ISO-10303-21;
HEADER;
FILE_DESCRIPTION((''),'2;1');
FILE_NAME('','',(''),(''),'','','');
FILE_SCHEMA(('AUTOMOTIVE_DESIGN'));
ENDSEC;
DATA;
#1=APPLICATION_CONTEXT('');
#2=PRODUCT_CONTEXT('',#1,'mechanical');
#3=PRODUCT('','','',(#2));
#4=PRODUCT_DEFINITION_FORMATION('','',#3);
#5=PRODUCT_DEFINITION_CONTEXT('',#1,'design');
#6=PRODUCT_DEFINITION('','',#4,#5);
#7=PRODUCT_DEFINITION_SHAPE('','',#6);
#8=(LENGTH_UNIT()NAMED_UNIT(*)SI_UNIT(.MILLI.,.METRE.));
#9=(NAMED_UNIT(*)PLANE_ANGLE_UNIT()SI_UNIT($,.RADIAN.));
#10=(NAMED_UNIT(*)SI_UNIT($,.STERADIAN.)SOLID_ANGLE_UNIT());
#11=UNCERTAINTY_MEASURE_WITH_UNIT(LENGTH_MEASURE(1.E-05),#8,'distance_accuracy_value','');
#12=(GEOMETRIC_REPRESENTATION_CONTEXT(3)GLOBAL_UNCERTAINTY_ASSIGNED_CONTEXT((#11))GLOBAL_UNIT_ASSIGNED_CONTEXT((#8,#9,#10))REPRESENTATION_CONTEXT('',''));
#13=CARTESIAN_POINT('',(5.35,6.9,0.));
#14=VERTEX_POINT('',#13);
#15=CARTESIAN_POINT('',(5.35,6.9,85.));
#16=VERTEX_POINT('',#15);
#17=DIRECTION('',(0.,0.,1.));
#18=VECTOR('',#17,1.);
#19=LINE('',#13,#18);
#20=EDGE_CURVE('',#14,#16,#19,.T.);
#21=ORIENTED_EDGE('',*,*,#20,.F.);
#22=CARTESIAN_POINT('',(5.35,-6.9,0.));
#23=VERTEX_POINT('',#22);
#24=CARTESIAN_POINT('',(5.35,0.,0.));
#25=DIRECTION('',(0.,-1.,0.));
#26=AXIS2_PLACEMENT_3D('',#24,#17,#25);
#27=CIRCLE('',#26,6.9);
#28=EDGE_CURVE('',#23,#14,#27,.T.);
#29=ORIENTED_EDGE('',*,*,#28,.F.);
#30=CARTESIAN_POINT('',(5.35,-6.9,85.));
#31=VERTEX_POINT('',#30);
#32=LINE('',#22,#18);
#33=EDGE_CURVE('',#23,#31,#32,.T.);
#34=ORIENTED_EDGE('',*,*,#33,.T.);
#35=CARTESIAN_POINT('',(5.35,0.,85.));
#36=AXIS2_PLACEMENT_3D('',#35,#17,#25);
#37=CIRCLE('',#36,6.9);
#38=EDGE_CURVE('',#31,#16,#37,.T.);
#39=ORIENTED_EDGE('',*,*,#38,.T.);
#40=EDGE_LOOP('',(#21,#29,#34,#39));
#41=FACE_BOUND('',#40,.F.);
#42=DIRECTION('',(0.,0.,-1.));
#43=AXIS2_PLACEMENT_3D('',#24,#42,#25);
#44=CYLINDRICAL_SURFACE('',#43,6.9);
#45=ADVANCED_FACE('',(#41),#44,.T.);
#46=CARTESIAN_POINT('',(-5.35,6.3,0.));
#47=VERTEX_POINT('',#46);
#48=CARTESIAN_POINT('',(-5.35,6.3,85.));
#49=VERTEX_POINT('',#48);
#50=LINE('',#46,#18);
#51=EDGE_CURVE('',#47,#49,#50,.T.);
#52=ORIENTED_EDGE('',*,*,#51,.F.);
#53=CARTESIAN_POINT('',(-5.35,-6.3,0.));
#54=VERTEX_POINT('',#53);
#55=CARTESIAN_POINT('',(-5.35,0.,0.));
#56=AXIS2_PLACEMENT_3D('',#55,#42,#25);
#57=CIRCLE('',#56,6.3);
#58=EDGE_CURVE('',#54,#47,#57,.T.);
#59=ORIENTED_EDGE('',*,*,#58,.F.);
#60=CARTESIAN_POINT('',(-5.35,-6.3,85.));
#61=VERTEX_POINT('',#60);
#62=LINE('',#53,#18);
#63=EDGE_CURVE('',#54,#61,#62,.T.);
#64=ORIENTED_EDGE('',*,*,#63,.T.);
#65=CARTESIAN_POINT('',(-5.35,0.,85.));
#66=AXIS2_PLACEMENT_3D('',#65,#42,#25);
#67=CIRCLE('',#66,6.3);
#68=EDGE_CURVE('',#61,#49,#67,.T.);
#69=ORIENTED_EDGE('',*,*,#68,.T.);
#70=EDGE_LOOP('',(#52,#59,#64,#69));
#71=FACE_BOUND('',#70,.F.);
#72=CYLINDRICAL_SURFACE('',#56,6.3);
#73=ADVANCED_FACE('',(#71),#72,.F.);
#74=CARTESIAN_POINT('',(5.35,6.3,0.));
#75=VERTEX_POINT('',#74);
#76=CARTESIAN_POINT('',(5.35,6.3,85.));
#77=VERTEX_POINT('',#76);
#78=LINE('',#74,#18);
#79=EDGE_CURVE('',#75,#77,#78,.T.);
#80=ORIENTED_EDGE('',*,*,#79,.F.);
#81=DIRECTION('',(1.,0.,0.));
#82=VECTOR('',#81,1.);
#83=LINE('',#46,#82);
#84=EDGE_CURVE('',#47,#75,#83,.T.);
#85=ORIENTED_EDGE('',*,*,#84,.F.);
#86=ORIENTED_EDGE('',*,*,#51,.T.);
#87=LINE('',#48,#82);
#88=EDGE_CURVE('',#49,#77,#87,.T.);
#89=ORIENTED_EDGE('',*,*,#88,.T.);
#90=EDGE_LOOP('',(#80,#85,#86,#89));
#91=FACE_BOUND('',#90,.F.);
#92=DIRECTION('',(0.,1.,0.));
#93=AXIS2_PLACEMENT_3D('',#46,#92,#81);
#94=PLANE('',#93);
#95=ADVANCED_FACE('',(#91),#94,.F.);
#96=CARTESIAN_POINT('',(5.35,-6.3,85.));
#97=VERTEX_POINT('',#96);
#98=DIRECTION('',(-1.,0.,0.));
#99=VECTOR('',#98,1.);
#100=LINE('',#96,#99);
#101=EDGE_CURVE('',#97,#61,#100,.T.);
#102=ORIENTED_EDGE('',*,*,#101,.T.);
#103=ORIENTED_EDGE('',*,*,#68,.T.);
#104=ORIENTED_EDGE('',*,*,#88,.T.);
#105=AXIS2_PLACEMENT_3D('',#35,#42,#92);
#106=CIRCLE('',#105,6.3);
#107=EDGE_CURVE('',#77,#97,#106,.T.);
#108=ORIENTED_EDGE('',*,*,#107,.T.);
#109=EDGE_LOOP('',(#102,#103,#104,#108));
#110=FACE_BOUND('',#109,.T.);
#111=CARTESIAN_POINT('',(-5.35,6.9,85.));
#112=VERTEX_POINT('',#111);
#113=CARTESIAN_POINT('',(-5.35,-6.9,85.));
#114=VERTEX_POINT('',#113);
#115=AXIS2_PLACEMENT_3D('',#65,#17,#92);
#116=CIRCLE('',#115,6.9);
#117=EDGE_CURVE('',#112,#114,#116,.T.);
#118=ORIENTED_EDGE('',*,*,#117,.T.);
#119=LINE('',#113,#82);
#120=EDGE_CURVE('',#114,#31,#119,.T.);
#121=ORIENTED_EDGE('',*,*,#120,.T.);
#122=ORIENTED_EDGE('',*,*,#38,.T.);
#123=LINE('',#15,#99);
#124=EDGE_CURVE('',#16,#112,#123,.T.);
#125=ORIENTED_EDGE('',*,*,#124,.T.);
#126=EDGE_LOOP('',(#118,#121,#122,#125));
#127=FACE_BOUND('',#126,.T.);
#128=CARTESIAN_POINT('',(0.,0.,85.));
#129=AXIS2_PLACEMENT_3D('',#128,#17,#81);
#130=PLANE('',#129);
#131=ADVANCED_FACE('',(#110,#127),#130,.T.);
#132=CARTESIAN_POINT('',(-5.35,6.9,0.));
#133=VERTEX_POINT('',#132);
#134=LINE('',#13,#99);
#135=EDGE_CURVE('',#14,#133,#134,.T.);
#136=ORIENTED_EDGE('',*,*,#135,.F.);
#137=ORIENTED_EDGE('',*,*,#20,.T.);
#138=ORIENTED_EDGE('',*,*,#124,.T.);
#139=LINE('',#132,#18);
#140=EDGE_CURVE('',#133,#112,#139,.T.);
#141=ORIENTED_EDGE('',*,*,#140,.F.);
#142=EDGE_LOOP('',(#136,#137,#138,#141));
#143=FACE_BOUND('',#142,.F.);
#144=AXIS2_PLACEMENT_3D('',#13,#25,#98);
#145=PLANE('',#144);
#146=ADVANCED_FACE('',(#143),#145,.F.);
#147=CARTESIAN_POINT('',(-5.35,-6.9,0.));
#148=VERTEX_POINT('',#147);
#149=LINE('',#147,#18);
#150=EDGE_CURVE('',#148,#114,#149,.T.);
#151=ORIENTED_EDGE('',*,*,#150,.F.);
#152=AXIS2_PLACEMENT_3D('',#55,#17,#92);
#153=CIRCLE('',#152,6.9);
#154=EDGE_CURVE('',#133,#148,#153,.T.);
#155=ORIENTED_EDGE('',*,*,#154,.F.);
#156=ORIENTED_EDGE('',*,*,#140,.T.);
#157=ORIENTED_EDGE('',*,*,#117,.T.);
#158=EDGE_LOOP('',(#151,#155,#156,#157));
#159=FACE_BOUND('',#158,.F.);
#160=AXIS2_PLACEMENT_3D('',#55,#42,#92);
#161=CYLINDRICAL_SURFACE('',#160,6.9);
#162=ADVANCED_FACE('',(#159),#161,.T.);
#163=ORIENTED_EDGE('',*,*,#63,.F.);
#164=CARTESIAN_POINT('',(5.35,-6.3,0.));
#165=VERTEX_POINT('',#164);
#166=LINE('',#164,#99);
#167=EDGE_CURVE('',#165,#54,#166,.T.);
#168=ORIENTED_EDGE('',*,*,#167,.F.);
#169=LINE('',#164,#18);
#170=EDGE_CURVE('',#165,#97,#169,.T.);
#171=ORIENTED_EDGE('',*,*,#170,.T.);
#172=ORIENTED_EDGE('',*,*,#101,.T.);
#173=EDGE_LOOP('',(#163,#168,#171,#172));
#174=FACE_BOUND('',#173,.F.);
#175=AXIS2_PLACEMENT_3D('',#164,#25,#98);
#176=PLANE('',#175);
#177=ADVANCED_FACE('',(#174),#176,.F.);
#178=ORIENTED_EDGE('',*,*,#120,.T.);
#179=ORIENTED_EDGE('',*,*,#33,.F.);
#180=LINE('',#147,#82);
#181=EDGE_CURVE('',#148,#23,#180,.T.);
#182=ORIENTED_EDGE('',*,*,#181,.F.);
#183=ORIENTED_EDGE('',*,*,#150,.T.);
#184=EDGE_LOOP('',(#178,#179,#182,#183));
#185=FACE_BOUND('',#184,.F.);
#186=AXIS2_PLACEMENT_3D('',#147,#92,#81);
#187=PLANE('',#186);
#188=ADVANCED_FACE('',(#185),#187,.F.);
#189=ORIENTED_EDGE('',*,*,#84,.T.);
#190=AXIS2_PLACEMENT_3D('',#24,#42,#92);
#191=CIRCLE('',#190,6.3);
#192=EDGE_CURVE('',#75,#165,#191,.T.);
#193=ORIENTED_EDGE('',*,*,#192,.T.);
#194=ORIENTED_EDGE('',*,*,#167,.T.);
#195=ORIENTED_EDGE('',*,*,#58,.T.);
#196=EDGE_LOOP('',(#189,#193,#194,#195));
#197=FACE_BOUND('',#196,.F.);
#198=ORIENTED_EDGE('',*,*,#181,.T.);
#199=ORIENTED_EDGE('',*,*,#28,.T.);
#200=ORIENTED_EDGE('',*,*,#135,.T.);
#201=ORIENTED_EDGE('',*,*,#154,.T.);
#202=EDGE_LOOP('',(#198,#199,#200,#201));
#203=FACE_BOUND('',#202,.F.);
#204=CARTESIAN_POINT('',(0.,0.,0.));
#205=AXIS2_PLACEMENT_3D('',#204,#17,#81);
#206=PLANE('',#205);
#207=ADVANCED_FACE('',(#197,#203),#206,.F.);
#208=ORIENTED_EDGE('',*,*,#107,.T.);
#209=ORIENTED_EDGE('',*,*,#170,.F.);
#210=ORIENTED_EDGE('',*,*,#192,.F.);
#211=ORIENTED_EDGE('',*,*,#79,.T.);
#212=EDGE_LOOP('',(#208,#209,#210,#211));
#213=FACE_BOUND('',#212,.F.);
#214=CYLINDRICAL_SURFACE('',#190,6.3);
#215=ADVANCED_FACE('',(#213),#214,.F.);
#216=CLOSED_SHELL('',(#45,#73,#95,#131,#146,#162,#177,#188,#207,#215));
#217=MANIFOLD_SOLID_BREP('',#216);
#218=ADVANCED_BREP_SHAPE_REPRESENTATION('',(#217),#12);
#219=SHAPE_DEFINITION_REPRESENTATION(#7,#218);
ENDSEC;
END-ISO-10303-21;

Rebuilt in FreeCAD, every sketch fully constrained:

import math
import FreeCAD as App
import Part
import Sketcher
Q = App.Units.Quantity

doc = App.newDocument("Part")
body = doc.addObject("PartDesign::Body", "Body")

sketch1 = body.newObject("Sketcher::SketchObject", "Sketch")
sketch1.AttachmentSupport = (doc.getObject("XY_Plane"), [""])
sketch1.MapMode = "FlatFace"
sketch1.addGeometry([
    Part.LineSegment(App.Vector(5, 7, 0), App.Vector(-5, 7, 0)),
    Part.ArcOfCircle(Part.Circle(App.Vector(-5, 0, 0), App.Vector(0, 0, 1), 7), math.radians(90), math.radians(270)),
    Part.LineSegment(App.Vector(-5, -7, 0), App.Vector(5, -7, 0)),
    Part.ArcOfCircle(Part.Circle(App.Vector(5, 0, 0), App.Vector(0, 0, 1), 7), math.radians(-90), math.radians(90)),
    Part.LineSegment(App.Vector(5, -6, 0), App.Vector(-5, -6, 0)),
    Part.ArcOfCircle(Part.Circle(App.Vector(-5, 0, 0), App.Vector(0, 0, 1), 6), math.radians(90), math.radians(270)),
    Part.LineSegment(App.Vector(-5, 6, 0), App.Vector(5, 6, 0)),
    Part.ArcOfCircle(Part.Circle(App.Vector(5, 0, 0), App.Vector(0, 0, 1), 6), math.radians(-90), math.radians(90)),
], False)
sketch1.addConstraint([
    Sketcher.Constraint("Tangent", 0, 2, 1, 1),
    Sketcher.Constraint("Tangent", 1, 2, 2, 1),
    Sketcher.Constraint("Tangent", 2, 2, 3, 1),
    Sketcher.Constraint("Tangent", 3, 2, 0, 1),
    Sketcher.Constraint("Tangent", 4, 2, 5, 2),
    Sketcher.Constraint("Tangent", 5, 1, 6, 1),
    Sketcher.Constraint("Tangent", 6, 2, 7, 2),
    Sketcher.Constraint("Tangent", 7, 1, 4, 1),
    Sketcher.Constraint("Horizontal", 0),
    Sketcher.Constraint("Horizontal", 2),
    Sketcher.Constraint("Horizontal", 4),
    Sketcher.Constraint("Horizontal", 6),
    Sketcher.Constraint("Coincident", 5, 3, 1, 3),
    Sketcher.Constraint("Symmetric", 1, 3, 3, 3, -1, 1),
    Sketcher.Constraint("Vertical", 7, 3, 2, 2),
    Sketcher.Constraint("Radius", 1, Q("6.9 mm")),
    Sketcher.Constraint("Radius", 5, Q("6.3 mm")),
    Sketcher.Constraint("DistanceX", 0, 2, 0, 1, Q("10.7 mm")),
])
pad1 = body.newObject("PartDesign::Pad", "Pad")
pad1.Profile = sketch1
pad1.Length = 85
body2 = doc.addObject("PartDesign::Body", "Body001")

sketch2 = body2.newObject("Sketcher::SketchObject", "Sketch001")
sketch2.AttachmentSupport = (doc.getObject("XY_Plane001"), [""])
sketch2.MapMode = "FlatFace"
sketch2.addGeometry([
    Part.LineSegment(App.Vector(-25, -20, 0), App.Vector(-25, -27, 0)),
    Part.LineSegment(App.Vector(-25, -27, 0), App.Vector(25, -27, 0)),
    Part.LineSegment(App.Vector(25, -27, 0), App.Vector(25, -20, 0)),
    Part.LineSegment(App.Vector(25, -20, 0), App.Vector(-25, -20, 0)),
], False)
sketch2.addConstraint([
    Sketcher.Constraint("Coincident", 0, 2, 1, 1),
    Sketcher.Constraint("Coincident", 1, 2, 2, 1),
    Sketcher.Constraint("Coincident", 2, 2, 3, 1),
    Sketcher.Constraint("Coincident", 3, 2, 0, 1),
    Sketcher.Constraint("Vertical", 0),
    Sketcher.Constraint("Horizontal", 1),
    Sketcher.Constraint("Vertical", 2),
    Sketcher.Constraint("Horizontal", 3),
    Sketcher.Constraint("DistanceX", 1, 1, 1, 2, Q("50 mm")),
    Sketcher.Constraint("DistanceY", 0, 2, 0, 1, Q("7 mm")),
    Sketcher.Constraint("DistanceX", 0, 2, -1, 1, Q("25 mm")),
    Sketcher.Constraint("DistanceY", 0, 2, -1, 1, Q("27 mm")),
])
pad2 = body2.newObject("PartDesign::Pad", "Pad001")
pad2.Profile = sketch2
pad2.Length = 85
body3 = doc.addObject("PartDesign::Body", "Body002")

sketch3 = body3.newObject("Sketcher::SketchObject", "Sketch002")
sketch3.AttachmentSupport = (doc.getObject("YZ_Plane002"), [""])
sketch3.MapMode = "FlatFace"
sketch3.addGeometry([
    Part.Circle(App.Vector(-35, 30, 0), App.Vector(0, 0, 1), 12),
    Part.Circle(App.Vector(-35, 30, 0), App.Vector(0, 0, 1), 8),
], False)
sketch3.addConstraint([
    Sketcher.Constraint("Coincident", 1, 3, 0, 3),
    Sketcher.Constraint("Diameter", 0, Q("25 mm")),
    Sketcher.Constraint("Diameter", 1, Q("15 mm")),
    Sketcher.Constraint("DistanceX", 0, 3, -1, 1, Q("35 mm")),
    Sketcher.Constraint("DistanceY", -1, 1, 0, 3, Q("30 mm")),
])
pad3 = body3.newObject("PartDesign::Pad", "Pad002")
pad3.Profile = sketch3
pad3.Length = 25
pad3.Midplane = True

sketch4 = body3.newObject("Sketcher::SketchObject", "Sketch003")
sketch4.AttachmentSupport = (doc.getObject("YZ_Plane002"), [""])
sketch4.MapMode = "FlatFace"
sketch4.AttachmentOffset = App.Placement(App.Vector(0, 0, 12.5), App.Rotation())
sketch4.addGeometry([
    Part.LineSegment(App.Vector(-56, 44, 0), App.Vector(-56, 24, 0)),
    Part.LineSegment(App.Vector(-56, 24, 0), App.Vector(-30, 24, 0)),
    Part.LineSegment(App.Vector(-30, 24, 0), App.Vector(-30, 44, 0)),
    Part.LineSegment(App.Vector(-30, 44, 0), App.Vector(-56, 44, 0)),
], False)
sketch4.addConstraint([
    Sketcher.Constraint("Coincident", 0, 2, 1, 1),
    Sketcher.Constraint("Coincident", 1, 2, 2, 1),
    Sketcher.Constraint("Coincident", 2, 2, 3, 1),
    Sketcher.Constraint("Coincident", 3, 2, 0, 1),
    Sketcher.Constraint("Vertical", 0),
    Sketcher.Constraint("Horizontal", 1),
    Sketcher.Constraint("Vertical", 2),
    Sketcher.Constraint("Horizontal", 3),
    Sketcher.Constraint("DistanceY", 0, 2, 0, 1, Q("20 mm")),
    Sketcher.Constraint("DistanceX", 1, 2, -1, 1, Q("30 mm")),
    Sketcher.Constraint("DistanceX", 1, 1, 1, 2, Q("25.622371 mm")),
    Sketcher.Constraint("DistanceY", -1, 1, 0, 2, Q("24.40983 mm")),
])
pad4 = body3.newObject("PartDesign::Pad", "Pad003")
pad4.Profile = sketch4
pad4.Length = 25
body2.Visibility = False
body3.Visibility = False

doc.recompute()
